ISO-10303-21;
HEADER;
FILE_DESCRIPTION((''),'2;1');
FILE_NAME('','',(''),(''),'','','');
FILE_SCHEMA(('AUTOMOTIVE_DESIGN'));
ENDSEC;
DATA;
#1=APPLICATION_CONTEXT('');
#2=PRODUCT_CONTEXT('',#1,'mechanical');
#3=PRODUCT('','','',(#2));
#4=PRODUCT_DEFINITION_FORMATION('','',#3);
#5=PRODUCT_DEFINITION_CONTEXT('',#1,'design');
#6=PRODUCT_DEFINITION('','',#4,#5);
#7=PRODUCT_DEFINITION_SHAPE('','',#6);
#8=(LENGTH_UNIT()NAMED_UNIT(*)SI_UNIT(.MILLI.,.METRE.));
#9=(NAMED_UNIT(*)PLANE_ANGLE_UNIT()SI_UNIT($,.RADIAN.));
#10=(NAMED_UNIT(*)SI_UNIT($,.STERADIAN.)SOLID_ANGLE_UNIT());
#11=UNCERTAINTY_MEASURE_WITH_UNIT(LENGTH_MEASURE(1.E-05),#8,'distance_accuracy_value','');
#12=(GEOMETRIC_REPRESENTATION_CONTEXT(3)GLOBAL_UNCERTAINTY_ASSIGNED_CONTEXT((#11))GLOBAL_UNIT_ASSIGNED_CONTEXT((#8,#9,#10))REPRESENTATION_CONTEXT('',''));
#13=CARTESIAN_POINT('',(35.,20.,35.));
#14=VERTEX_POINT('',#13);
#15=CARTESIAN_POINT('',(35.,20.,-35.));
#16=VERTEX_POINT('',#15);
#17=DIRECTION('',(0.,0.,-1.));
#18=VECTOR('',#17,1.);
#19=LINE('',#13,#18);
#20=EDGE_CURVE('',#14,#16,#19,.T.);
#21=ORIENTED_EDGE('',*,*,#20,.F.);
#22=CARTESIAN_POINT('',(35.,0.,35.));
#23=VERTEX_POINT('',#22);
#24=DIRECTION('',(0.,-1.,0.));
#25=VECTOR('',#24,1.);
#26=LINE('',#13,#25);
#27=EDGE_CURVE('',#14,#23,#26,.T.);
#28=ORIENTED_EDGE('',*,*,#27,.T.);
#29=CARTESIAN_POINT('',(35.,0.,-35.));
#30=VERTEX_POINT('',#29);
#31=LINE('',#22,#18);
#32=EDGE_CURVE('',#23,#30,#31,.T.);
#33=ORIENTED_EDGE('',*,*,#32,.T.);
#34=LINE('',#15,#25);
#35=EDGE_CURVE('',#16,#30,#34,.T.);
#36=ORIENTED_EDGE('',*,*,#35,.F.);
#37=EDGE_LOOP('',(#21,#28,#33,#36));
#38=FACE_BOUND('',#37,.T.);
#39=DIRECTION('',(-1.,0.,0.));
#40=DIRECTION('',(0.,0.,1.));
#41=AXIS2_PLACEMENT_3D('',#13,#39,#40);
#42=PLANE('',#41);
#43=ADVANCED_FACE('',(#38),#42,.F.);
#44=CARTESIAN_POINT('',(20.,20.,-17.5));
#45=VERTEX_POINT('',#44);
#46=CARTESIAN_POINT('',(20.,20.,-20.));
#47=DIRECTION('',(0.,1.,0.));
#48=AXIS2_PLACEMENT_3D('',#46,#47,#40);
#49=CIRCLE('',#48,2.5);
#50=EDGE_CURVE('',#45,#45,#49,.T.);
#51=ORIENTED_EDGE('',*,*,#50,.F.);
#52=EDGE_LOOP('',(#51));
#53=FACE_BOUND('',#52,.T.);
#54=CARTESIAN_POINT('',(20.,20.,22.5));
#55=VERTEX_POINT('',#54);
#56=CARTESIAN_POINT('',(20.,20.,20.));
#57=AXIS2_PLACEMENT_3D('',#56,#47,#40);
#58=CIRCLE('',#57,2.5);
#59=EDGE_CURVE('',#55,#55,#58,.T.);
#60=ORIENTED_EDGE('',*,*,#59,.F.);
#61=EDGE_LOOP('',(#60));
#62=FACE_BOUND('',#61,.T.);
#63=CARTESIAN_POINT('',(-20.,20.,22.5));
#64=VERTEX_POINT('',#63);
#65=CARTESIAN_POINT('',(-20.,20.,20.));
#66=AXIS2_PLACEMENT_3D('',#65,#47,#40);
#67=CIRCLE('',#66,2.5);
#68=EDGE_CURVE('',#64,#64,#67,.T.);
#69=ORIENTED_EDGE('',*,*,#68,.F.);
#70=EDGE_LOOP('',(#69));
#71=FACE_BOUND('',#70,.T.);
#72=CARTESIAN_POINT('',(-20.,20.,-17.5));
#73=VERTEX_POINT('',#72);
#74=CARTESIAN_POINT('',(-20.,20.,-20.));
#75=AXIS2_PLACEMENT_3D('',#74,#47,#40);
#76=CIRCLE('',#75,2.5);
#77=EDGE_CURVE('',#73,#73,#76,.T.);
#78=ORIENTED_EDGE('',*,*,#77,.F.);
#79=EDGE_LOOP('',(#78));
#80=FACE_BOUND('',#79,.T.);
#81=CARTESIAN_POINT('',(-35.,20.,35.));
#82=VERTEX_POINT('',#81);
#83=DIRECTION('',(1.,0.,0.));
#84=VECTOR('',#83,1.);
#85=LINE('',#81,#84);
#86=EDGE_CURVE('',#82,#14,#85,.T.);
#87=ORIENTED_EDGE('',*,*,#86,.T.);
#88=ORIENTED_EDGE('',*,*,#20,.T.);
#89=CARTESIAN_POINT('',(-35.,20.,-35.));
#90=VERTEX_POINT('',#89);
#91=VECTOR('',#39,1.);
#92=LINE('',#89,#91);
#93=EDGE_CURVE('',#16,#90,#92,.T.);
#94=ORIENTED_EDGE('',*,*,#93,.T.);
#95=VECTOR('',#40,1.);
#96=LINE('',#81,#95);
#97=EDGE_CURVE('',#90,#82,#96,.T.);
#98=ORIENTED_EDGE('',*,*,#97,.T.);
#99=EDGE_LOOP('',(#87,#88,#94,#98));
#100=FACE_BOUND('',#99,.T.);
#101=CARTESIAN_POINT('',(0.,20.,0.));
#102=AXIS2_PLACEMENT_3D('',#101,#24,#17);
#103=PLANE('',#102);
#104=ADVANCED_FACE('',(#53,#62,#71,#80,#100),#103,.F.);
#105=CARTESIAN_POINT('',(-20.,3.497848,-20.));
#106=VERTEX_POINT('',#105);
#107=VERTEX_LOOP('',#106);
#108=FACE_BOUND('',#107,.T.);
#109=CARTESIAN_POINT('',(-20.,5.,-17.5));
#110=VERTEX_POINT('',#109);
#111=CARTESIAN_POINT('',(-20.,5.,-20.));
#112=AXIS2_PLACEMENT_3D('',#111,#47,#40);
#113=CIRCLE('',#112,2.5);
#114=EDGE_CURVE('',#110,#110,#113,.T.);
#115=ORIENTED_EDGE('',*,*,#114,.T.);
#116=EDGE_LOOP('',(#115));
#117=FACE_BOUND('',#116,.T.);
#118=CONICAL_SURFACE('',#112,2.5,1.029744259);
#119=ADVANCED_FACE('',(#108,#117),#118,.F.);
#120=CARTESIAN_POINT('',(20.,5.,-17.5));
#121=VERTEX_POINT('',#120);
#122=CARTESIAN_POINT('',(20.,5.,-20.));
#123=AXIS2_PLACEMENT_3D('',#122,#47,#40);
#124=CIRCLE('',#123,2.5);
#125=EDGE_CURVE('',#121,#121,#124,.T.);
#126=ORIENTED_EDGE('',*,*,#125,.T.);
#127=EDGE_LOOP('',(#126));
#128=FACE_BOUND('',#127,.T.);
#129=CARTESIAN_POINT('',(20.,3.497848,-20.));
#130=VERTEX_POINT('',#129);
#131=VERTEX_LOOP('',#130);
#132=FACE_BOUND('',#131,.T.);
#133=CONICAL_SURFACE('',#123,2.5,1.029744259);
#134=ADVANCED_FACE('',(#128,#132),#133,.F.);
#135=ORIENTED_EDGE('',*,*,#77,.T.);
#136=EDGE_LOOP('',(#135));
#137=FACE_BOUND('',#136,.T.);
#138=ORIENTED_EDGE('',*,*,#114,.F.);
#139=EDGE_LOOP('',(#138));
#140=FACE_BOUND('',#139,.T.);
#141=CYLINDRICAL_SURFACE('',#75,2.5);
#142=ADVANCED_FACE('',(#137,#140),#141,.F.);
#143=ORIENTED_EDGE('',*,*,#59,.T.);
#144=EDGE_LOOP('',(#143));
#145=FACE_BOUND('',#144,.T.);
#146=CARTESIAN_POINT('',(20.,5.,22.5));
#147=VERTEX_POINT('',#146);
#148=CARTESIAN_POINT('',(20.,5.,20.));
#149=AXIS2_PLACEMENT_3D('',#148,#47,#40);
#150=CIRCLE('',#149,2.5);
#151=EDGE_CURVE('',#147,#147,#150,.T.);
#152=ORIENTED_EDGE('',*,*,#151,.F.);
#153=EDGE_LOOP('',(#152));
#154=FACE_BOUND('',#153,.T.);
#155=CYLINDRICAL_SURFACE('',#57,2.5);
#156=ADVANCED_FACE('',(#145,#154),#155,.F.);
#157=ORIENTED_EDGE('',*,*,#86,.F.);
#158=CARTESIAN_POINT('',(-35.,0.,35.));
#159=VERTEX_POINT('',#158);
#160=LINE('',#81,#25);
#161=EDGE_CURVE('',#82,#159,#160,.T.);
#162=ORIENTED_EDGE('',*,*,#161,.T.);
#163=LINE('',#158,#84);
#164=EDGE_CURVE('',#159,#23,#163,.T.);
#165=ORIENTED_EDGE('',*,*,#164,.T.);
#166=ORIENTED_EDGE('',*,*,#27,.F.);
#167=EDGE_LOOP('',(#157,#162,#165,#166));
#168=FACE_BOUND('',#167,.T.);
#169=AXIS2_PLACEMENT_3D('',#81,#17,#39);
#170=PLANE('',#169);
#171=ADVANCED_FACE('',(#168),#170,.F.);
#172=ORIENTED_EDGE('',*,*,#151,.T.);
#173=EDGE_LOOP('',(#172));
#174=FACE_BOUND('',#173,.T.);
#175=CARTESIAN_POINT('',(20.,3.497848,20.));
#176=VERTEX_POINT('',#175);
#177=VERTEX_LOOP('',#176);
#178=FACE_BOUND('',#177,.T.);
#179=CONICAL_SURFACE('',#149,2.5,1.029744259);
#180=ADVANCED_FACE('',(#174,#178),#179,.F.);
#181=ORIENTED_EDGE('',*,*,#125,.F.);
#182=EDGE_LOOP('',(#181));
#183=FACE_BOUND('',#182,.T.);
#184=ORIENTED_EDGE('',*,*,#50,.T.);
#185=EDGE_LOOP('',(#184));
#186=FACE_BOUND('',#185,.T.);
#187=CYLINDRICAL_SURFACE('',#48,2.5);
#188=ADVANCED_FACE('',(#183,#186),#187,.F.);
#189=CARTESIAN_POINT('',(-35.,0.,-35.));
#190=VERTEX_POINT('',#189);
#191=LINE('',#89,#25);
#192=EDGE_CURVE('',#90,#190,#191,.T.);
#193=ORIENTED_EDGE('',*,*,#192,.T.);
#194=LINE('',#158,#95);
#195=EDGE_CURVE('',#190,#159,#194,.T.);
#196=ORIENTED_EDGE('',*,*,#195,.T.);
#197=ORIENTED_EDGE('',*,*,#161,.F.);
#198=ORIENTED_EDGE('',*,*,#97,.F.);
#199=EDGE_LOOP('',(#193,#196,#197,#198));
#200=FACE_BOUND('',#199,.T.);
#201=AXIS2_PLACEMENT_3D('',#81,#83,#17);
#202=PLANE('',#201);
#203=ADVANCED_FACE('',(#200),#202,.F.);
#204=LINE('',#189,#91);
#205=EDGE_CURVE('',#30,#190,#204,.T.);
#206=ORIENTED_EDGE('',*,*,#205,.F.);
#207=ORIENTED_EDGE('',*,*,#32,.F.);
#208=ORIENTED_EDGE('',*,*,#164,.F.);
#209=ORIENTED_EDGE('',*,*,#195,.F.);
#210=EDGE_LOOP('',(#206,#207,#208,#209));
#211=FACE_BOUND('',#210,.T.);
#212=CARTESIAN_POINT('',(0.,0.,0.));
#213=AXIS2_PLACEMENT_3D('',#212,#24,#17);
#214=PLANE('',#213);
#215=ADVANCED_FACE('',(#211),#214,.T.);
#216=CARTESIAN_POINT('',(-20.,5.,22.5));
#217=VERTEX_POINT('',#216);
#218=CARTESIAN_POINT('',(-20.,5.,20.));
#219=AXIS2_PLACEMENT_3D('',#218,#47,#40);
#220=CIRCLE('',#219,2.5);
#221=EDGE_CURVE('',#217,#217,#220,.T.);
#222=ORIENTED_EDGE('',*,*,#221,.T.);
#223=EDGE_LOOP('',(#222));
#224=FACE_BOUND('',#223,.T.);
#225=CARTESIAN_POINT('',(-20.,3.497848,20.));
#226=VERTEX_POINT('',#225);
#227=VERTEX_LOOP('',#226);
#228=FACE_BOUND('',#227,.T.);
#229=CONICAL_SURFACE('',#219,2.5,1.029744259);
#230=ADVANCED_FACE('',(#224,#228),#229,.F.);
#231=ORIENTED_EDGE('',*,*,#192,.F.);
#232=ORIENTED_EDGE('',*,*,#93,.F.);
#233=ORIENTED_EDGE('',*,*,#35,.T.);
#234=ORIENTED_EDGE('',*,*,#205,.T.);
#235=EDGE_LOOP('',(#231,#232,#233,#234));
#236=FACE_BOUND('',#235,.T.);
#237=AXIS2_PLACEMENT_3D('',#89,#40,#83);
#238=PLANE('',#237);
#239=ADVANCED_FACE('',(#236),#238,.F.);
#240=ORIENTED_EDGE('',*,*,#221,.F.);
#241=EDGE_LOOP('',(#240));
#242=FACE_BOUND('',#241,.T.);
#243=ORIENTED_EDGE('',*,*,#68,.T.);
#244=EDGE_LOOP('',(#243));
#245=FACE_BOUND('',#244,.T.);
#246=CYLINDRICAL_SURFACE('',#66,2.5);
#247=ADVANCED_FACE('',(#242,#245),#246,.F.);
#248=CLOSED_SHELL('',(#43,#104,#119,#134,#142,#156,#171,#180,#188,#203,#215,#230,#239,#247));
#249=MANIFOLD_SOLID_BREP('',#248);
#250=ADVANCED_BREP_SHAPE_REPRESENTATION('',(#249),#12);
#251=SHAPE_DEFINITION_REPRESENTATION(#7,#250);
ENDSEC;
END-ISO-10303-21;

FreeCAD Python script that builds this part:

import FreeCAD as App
import Part
import Sketcher
Q = App.Units.Quantity

doc = App.newDocument("Part")
params = doc.addObject("Spreadsheet::Sheet", "Params")
for row, (alias, value) in enumerate([
    ("sketch1_width", "70 mm"),
    ("pad1_length", "20 mm"),
    ("sketch2_diameter", "5 mm"),
    ("hole_diameter", "5 mm"),
    ("hole_depth", "15 mm"),
], start=1):
    params.set(f"A{row}", alias)
    params.set(f"B{row}", "=" + value)
    params.setAlias(f"B{row}", alias)

body = doc.addObject("PartDesign::Body", "Body")

sketch1 = body.newObject("Sketcher::SketchObject", "Sketch")
sketch1.AttachmentSupport = (doc.getObject("XZ_Plane"), [""])
sketch1.MapMode = "FlatFace"
sketch1.addGeometry([
    Part.LineSegment(App.Vector(-35, -35, 0), App.Vector(-35, 35, 0)),
    Part.LineSegment(App.Vector(-35, 35, 0), App.Vector(35, 35, 0)),
    Part.LineSegment(App.Vector(35, 35, 0), App.Vector(35, -35, 0)),
    Part.LineSegment(App.Vector(35, -35, 0), App.Vector(-35, -35, 0)),
], False)
sketch1.addConstraint([
    Sketcher.Constraint("Coincident", 0, 2, 1, 1),
    Sketcher.Constraint("Coincident", 1, 2, 2, 1),
    Sketcher.Constraint("Coincident", 2, 2, 3, 1),
    Sketcher.Constraint("Coincident", 3, 2, 0, 1),
    Sketcher.Constraint("Vertical", 0),
    Sketcher.Constraint("Horizontal", 1),
    Sketcher.Constraint("Vertical", 2),
    Sketcher.Constraint("Horizontal", 3),
    Sketcher.Constraint("Symmetric", 0, 2, 2, 2, -1, 1),
    Sketcher.Constraint("Equal", 3, 0),
    Sketcher.Constraint("DistanceX", 1, 1, 1, 2, Q("70 mm")),
])
sketch1.setExpression("Constraints[10]", "Params.sketch1_width")
pad1 = body.newObject("PartDesign::Pad", "Pad")
pad1.Profile = sketch1
pad1.setExpression("Length", "Params.pad1_length")
pad1.Reversed = True

sketch2 = body.newObject("Sketcher::SketchObject", "Sketch001")
sketch2.AttachmentSupport = (doc.getObject("XZ_Plane"), [""])
sketch2.MapMode = "FlatFace"
sketch2.AttachmentOffset = App.Placement(App.Vector(0, 0, -20), App.Rotation())
sketch2.addGeometry([
    Part.Circle(App.Vector(20, -20, 0), App.Vector(0, 0, 1), 2.5),
    Part.Circle(App.Vector(20, 20, 0), App.Vector(0, 0, 1), 2.5),
    Part.Circle(App.Vector(-20, 20, 0), App.Vector(0, 0, 1), 2.5),
    Part.Circle(App.Vector(-20, -20, 0), App.Vector(0, 0, 1), 2.5),
], False)
sketch2.addConstraint([
    Sketcher.Constraint("Equal", 0, 1),
    Sketcher.Constraint("Equal", 1, 2),
    Sketcher.Constraint("Equal", 2, 3),
    Sketcher.Constraint("Symmetric", 0, 3, 2, 3, -1, 1),
    Sketcher.Constraint("Symmetric", 1, 3, 3, 3, -1, 1),
    Sketcher.Constraint("Symmetric", 1, 3, 2, 3, -2),
    Sketcher.Constraint("Diameter", 0, Q("5 mm")),
    Sketcher.Constraint("DistanceX", -1, 1, 0, 3, Q("20 mm")),
    Sketcher.Constraint("DistanceY", 0, 3, -1, 1, Q("20 mm")),
])
sketch2.setExpression("Constraints[6]", "Params.sketch2_diameter")
doc.recompute()
hole = body.newObject("PartDesign::Hole", "Hole")
hole.Profile = sketch2
hole.ThreadType = "None"
hole.setExpression("Diameter", "Params.hole_diameter")
hole.DepthType = "Dimension"
hole.setExpression("Depth", "Params.hole_depth")
hole.DrillPoint = "Angled"
hole.DrillPointAngle = 118
hole.Reversed = True

doc.recompute()
